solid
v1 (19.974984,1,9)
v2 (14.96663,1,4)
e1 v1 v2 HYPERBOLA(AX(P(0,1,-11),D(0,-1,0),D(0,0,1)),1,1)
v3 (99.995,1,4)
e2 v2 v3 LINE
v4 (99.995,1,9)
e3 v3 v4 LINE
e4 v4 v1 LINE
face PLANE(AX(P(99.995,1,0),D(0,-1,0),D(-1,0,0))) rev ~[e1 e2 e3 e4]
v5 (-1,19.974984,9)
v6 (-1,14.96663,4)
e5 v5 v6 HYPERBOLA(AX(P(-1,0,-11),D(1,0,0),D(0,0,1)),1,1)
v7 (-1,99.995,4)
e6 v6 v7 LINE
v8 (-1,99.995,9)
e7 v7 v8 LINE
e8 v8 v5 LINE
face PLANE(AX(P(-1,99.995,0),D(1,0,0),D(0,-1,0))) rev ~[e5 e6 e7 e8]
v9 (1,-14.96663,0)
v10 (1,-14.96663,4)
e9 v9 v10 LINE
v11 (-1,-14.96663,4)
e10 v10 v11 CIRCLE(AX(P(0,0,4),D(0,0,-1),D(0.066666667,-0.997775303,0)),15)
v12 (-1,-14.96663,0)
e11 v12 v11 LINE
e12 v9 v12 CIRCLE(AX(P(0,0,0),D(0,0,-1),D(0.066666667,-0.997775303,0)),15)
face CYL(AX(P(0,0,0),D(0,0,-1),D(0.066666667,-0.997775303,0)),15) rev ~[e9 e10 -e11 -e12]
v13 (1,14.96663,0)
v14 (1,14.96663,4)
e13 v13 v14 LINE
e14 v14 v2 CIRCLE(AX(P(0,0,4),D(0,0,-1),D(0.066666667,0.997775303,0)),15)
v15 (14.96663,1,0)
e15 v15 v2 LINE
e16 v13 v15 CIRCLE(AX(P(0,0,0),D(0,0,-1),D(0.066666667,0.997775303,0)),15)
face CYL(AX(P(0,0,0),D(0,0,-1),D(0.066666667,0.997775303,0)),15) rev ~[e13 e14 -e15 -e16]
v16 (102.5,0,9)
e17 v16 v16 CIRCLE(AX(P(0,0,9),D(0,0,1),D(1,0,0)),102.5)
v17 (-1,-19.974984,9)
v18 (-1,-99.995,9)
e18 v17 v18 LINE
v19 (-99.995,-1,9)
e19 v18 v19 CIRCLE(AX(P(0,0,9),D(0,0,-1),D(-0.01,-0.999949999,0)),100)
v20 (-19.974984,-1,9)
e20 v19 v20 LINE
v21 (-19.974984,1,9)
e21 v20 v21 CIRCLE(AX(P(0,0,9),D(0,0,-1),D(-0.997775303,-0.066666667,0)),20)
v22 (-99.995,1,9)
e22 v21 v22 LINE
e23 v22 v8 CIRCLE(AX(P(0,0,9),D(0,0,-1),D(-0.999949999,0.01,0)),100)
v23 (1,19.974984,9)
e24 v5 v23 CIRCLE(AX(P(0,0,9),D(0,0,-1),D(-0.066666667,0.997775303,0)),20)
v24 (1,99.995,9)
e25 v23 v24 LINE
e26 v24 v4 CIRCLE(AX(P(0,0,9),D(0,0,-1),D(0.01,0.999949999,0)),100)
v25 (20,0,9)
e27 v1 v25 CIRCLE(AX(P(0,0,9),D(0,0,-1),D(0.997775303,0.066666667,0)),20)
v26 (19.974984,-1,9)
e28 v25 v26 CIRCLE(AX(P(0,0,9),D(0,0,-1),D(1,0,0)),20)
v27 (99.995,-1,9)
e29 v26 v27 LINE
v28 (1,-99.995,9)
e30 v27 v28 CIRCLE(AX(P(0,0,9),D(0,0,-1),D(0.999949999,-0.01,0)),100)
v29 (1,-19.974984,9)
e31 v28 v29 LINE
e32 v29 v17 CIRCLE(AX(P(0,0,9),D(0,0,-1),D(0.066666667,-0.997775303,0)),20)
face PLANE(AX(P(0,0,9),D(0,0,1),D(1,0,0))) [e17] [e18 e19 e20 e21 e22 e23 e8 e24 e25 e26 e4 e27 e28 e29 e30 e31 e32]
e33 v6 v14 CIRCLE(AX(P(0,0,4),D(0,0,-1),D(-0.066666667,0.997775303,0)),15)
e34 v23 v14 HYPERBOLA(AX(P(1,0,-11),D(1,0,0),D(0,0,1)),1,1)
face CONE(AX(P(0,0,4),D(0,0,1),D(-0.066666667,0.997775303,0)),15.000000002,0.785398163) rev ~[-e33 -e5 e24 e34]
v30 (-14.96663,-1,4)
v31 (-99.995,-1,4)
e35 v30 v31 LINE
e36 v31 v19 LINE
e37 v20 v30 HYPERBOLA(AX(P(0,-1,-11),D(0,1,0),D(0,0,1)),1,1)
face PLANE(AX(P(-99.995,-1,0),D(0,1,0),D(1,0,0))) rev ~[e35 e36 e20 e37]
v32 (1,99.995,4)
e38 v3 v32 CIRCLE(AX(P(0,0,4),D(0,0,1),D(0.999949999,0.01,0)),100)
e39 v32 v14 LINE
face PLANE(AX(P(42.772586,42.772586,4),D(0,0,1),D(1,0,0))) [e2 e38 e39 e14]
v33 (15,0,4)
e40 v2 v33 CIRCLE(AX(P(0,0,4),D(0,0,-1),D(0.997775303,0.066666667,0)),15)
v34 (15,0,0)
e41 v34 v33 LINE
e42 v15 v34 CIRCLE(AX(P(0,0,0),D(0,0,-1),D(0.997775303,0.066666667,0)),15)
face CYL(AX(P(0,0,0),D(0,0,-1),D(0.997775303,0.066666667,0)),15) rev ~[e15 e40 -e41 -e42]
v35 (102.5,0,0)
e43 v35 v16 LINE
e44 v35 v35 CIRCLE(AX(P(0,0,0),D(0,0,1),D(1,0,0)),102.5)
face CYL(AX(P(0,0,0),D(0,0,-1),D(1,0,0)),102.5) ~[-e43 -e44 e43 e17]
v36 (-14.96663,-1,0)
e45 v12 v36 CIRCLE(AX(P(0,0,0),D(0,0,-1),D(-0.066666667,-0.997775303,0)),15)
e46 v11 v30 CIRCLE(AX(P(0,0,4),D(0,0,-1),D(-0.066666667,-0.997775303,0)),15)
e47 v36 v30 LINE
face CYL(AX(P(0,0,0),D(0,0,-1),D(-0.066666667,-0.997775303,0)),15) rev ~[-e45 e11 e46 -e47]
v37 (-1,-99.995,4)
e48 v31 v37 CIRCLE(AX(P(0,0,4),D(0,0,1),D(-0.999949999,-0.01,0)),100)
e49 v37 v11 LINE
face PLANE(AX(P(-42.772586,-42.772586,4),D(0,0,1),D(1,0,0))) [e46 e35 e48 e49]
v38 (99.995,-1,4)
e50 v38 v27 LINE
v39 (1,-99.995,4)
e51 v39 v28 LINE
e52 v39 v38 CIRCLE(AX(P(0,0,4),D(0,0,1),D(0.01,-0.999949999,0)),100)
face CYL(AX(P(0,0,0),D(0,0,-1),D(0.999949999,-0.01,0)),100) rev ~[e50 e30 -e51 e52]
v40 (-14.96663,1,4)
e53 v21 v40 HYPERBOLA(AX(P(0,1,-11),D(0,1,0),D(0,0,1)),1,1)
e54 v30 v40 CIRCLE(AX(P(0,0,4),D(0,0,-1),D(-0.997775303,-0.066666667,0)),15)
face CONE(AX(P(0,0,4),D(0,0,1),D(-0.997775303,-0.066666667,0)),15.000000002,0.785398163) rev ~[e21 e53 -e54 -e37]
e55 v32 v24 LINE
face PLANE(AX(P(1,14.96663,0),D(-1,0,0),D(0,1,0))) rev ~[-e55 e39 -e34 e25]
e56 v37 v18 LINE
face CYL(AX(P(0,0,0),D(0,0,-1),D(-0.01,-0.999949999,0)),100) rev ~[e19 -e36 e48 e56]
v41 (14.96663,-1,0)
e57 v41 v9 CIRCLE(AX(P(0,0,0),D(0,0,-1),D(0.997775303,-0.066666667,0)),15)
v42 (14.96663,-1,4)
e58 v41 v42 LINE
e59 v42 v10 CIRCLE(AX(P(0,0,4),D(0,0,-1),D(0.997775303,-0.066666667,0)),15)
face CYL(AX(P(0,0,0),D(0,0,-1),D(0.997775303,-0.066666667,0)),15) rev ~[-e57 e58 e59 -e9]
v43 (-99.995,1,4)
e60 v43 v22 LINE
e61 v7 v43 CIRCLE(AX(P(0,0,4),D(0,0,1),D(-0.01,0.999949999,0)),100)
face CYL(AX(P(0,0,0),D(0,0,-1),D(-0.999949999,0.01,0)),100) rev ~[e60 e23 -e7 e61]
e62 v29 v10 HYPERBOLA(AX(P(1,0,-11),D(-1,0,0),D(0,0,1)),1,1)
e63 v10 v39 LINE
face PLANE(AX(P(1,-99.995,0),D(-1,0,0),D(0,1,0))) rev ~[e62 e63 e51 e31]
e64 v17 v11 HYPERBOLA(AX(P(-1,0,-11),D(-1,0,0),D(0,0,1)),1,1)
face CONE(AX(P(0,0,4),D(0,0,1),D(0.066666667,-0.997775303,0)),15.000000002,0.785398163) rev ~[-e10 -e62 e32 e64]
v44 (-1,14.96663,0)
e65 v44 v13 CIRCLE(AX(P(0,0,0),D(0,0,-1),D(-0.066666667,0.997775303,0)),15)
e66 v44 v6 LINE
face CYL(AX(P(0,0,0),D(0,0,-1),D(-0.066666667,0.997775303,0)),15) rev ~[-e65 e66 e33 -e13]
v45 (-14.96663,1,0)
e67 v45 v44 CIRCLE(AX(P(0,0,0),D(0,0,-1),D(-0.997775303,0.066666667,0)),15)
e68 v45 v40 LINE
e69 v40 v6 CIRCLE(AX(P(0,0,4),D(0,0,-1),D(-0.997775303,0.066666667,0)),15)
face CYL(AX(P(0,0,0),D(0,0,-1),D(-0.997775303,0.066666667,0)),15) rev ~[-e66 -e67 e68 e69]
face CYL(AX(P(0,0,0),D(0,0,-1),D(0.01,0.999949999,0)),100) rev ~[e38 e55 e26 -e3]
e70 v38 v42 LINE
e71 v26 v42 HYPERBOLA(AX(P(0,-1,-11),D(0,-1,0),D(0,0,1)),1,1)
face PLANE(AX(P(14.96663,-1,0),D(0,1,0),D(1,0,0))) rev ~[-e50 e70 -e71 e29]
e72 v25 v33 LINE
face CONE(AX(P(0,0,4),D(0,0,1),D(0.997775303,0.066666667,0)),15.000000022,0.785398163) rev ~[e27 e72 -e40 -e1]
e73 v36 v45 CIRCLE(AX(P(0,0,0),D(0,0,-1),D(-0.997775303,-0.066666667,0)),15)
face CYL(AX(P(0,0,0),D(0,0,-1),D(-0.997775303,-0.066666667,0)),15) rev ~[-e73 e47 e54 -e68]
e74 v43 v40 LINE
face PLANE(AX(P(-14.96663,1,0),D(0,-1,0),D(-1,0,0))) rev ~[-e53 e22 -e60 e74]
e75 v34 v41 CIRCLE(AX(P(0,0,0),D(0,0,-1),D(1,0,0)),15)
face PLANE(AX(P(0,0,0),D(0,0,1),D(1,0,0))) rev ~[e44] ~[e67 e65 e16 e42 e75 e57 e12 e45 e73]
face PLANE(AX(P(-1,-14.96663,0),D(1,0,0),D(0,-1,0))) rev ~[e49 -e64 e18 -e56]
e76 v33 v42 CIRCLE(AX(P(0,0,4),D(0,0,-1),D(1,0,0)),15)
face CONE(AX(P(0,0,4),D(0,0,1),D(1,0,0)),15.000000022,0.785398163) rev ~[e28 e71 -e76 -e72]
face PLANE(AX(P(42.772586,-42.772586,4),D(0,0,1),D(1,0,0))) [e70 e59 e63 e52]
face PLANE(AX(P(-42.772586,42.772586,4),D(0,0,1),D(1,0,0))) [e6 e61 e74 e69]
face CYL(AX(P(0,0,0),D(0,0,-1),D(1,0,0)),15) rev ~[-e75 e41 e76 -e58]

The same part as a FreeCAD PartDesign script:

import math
import FreeCAD as App
import Part
import Sketcher
Q = App.Units.Quantity


def edges_at(feature, points):
    """Names of the edges that pass closest to the given points."""
    edges = feature.Shape.Edges
    near = lambda p: min(range(len(edges)), key=lambda i: edges[i].distToShape(Part.Vertex(*p))[0])
    return sorted({f"Edge{near(p) + 1}" for p in points})

doc = App.newDocument("Part")
body = doc.addObject("PartDesign::Body", "Body")

sketch1 = body.newObject("Sketcher::SketchObject", "Sketch")
sketch1.AttachmentSupport = (doc.getObject("XY_Plane"), [""])
sketch1.MapMode = "FlatFace"
sketch1.addGeometry([
    Part.LineSegment(App.Vector(-1, -99.995, 0), App.Vector(-1, -14.96663, 0)),
    Part.ArcOfCircle(Part.Circle(App.Vector(0, 0, 0), App.Vector(0, 0, 1), 15), math.radians(-176.177446), math.radians(-93.822554)),
    Part.LineSegment(App.Vector(-14.96663, -1, 0), App.Vector(-99.995, -1, 0)),
    Part.ArcOfCircle(Part.Circle(App.Vector(0, 0, 0), App.Vector(0, 0, 1), 100), math.radians(-179.427033), math.radians(-90.572967)),
], False)
sketch1.addConstraint([
    Sketcher.Constraint("Coincident", 0, 2, 1, 2),
    Sketcher.Constraint("Coincident", 1, 1, 2, 1),
    Sketcher.Constraint("Coincident", 2, 2, 3, 1),
    Sketcher.Constraint("Coincident", 3, 2, 0, 1),
    Sketcher.Constraint("Vertical", 0),
    Sketcher.Constraint("Horizontal", 2),
    Sketcher.Constraint("Coincident", 1, 3, -1, 1),
    Sketcher.Constraint("Coincident", 3, 3, -1, 1),
    Sketcher.Constraint("Equal", 2, 0),
    Sketcher.Constraint("Radius", 1, Q("15 mm")),
    Sketcher.Constraint("Radius", 3, Q("100 mm")),
    Sketcher.Constraint("DistanceX", 0, 2, -1, 1, Q("1 mm")),
])
pad1 = body.newObject("PartDesign::Pad", "Pad")
pad1.Profile = sketch1
pad1.Length = 4
body2 = doc.addObject("PartDesign::Body", "Body001")

sketch2 = body2.newObject("Sketcher::SketchObject", "Sketch001")
sketch2.AttachmentSupport = (doc.getObject("XY_Plane001"), [""])
sketch2.MapMode = "FlatFace"
sketch2.addGeometry([
    Part.LineSegment(App.Vector(99.995, -1, 0), App.Vector(14.96663, -1, 0)),
    Part.ArcOfCircle(Part.Circle(App.Vector(0, 0, 0), App.Vector(0, 0, 1), 15), math.radians(-86.177446), math.radians(-3.822554)),
    Part.LineSegment(App.Vector(1, -14.96663, 0), App.Vector(1, -99.995, 0)),
    Part.ArcOfCircle(Part.Circle(App.Vector(0, 0, 0), App.Vector(0, 0, 1), 100), math.radians(-89.427033), math.radians(-0.572967)),
], False)
sketch2.addConstraint([
    Sketcher.Constraint("Coincident", 0, 2, 1, 2),
    Sketcher.Constraint("Coincident", 1, 1, 2, 1),
    Sketcher.Constraint("Coincident", 2, 2, 3, 1),
    Sketcher.Constraint("Coincident", 3, 2, 0, 1),
    Sketcher.Constraint("Horizontal", 0),
    Sketcher.Constraint("Vertical", 2),
    Sketcher.Constraint("Coincident", 1, 3, -1, 1),
    Sketcher.Constraint("Coincident", 3, 3, -1, 1),
    Sketcher.Constraint("Equal", 0, 2),
    Sketcher.Constraint("Radius", 1, Q("15 mm")),
    Sketcher.Constraint("Radius", 3, Q("100 mm")),
    Sketcher.Constraint("DistanceY", 0, 2, -1, 1, Q("1 mm")),
])
pad2 = body2.newObject("PartDesign::Pad", "Pad001")
pad2.Profile = sketch2
pad2.Length = 4
body3 = doc.addObject("PartDesign::Body", "Body002")

sketch3 = body3.newObject("Sketcher::SketchObject", "Sketch002")
sketch3.AttachmentSupport = (doc.getObject("XY_Plane002"), [""])
sketch3.MapMode = "FlatFace"
sketch3.addGeometry([
    Part.ArcOfCircle(Part.Circle(App.Vector(0, 0, 0), App.Vector(0, 0, 1), 15), math.radians(3.822554), math.radians(86.177446)),
    Part.LineSegment(App.Vector(14.96663, 1, 0), App.Vector(99.995, 1, 0)),
    Part.ArcOfCircle(Part.Circle(App.Vector(0, 0, 0), App.Vector(0, 0, 1), 100), math.radians(0.572967), math.radians(89.427033)),
    Part.LineSegment(App.Vector(1, 99.995, 0), App.Vector(1, 14.96663, 0)),
], False)
sketch3.addConstraint([
    Sketcher.Constraint("Coincident", 0, 1, 1, 1),
    Sketcher.Constraint("Coincident", 1, 2, 2, 1),
    Sketcher.Constraint("Coincident", 2, 2, 3, 1),
    Sketcher.Constraint("Coincident", 3, 2, 0, 2),
    Sketcher.Constraint("Horizontal", 1),
    Sketcher.Constraint("Vertical", 3),
    Sketcher.Constraint("Coincident", 0, 3, -1, 1),
    Sketcher.Constraint("Coincident", 2, 3, -1, 1),
    Sketcher.Constraint("Equal", 1, 3),
    Sketcher.Constraint("Radius", 0, Q("15 mm")),
    Sketcher.Constraint("Radius", 2, Q("100 mm")),
    Sketcher.Constraint("DistanceY", -1, 1, 0, 1, Q("1 mm")),
])
pad3 = body3.newObject("PartDesign::Pad", "Pad002")
pad3.Profile = sketch3
pad3.Length = 4
body4 = doc.addObject("PartDesign::Body", "Body003")

sketch4 = body4.newObject("Sketcher::SketchObject", "Sketch003")
sketch4.AttachmentSupport = (doc.getObject("XY_Plane003"), [""])
sketch4.MapMode = "FlatFace"
sketch4.addGeometry([
    Part.ArcOfCircle(Part.Circle(App.Vector(0, 0, 0), App.Vector(0, 0, 1), 15), math.radians(93.822554), math.radians(176.177446)),
    Part.LineSegment(App.Vector(-1, 14.96663, 0), App.Vector(-1, 99.995, 0)),
    Part.ArcOfCircle(Part.Circle(App.Vector(0, 0, 0), App.Vector(0, 0, 1), 100), math.radians(90.572967), math.radians(179.427033)),
    Part.LineSegment(App.Vector(-99.995, 1, 0), App.Vector(-14.96663, 1, 0)),
], False)
sketch4.addConstraint([
    Sketcher.Constraint("Coincident", 0, 1, 1, 1),
    Sketcher.Constraint("Coincident", 1, 2, 2, 1),
    Sketcher.Constraint("Coincident", 2, 2, 3, 1),
    Sketcher.Constraint("Coincident", 3, 2, 0, 2),
    Sketcher.Constraint("Vertical", 1),
    Sketcher.Constraint("Horizontal", 3),
    Sketcher.Constraint("Coincident", 0, 3, -1, 1),
    Sketcher.Constraint("Coincident", 2, 3, -1, 1),
    Sketcher.Constraint("Equal", 3, 1),
    Sketcher.Constraint("Radius", 0, Q("15 mm")),
    Sketcher.Constraint("Radius", 2, Q("100 mm")),
    Sketcher.Constraint("DistanceX", 0, 1, -1, 1, Q("1 mm")),
])
pad4 = body4.newObject("PartDesign::Pad", "Pad003")
pad4.Profile = sketch4
pad4.Length = 4
body.AllowCompound = True
doc.recompute()

boolean = body.newObject("PartDesign::Boolean", "Boolean")
boolean.Type = "Fuse"
boolean.addObjects([body2])
doc.recompute()

boolean2 = body.newObject("PartDesign::Boolean", "Boolean001")
boolean2.Type = "Fuse"
boolean2.addObjects([body3])
doc.recompute()

boolean3 = body.newObject("PartDesign::Boolean", "Boolean002")
boolean3.Type = "Fuse"
boolean3.addObjects([body4])

sketch5 = body.newObject("Sketcher::SketchObject", "Sketch004")
sketch5.AttachmentSupport = (doc.getObject("XY_Plane"), [""])
sketch5.MapMode = "FlatFace"
sketch5.addGeometry([
    Part.Circle(App.Vector(0, 0, 0), App.Vector(0, 0, 1), 102.5),
    Part.LineSegment(App.Vector(99.995, 1, 0), App.Vector(14.96663, 1, 0)),
    Part.ArcOfCircle(Part.Circle(App.Vector(0, 0, 0), App.Vector(0, 0, 1), 15), math.radians(0), math.radians(3.822554)),
    Part.ArcOfCircle(Part.Circle(App.Vector(0, 0, 0), App.Vector(0, 0, 1), 15), math.radians(-3.822554), math.radians(0)),
    Part.LineSegment(App.Vector(14.96663, -1, 0), App.Vector(99.995, -1, 0)),
    Part.ArcOfCircle(Part.Circle(App.Vector(0, 0, 0), App.Vector(0, 0, 1), 100), math.radians(-89.427033), math.radians(-0.572967)),
    Part.LineSegment(App.Vector(1, -99.995, 0), App.Vector(1, -14.96663, 0)),
    Part.ArcOfCircle(Part.Circle(App.Vector(0, 0, 0), App.Vector(0, 0, 1), 15), math.radians(-93.822554), math.radians(-86.177446)),
    Part.LineSegment(App.Vector(-1, -14.96663, 0), App.Vector(-1, -99.995, 0)),
    Part.ArcOfCircle(Part.Circle(App.Vector(0, 0, 0), App.Vector(0, 0, 1), 100), math.radians(-179.427033), math.radians(-90.572967)),
    Part.LineSegment(App.Vector(-99.995, -1, 0), App.Vector(-14.96663, -1, 0)),
    Part.ArcOfCircle(Part.Circle(App.Vector(0, 0, 0), App.Vector(0, 0, 1), 15), math.radians(176.177446), math.radians(183.822554)),
    Part.LineSegment(App.Vector(-14.96663, 1, 0), App.Vector(-99.995, 1, 0)),
    Part.ArcOfCircle(Part.Circle(App.Vector(0, 0, 0), App.Vector(0, 0, 1), 100), math.radians(90.572967), math.radians(179.427033)),
    Part.LineSegment(App.Vector(-1, 99.995, 0), App.Vector(-1, 14.96663, 0)),
    Part.ArcOfCircle(Part.Circle(App.Vector(0, 0, 0), App.Vector(0, 0, 1), 15), math.radians(86.177446), math.radians(93.822554)),
    Part.LineSegment(App.Vector(1, 14.96663, 0), App.Vector(1, 99.995, 0)),
    Part.ArcOfCircle(Part.Circle(App.Vector(0, 0, 0), App.Vector(0, 0, 1), 100), math.radians(0.572967), math.radians(89.427033)),
], False)
sketch5.addConstraint([
    Sketcher.Constraint("Coincident", 1, 2, 2, 2),
    Sketcher.Constraint("Tangent", 2, 1, 3, 2),
    Sketcher.Constraint("Coincident", 3, 1, 4, 1),
    Sketcher.Constraint("Coincident", 4, 2, 5, 2),
    Sketcher.Constraint("Coincident", 5, 1, 6, 1),
    Sketcher.Constraint("Coincident", 6, 2, 7, 2),
    Sketcher.Constraint("Coincident", 7, 1, 8, 1),
    Sketcher.Constraint("Coincident", 8, 2, 9, 2),
    Sketcher.Constraint("Coincident", 9, 1, 10, 1),
    Sketcher.Constraint("Coincident", 10, 2, 11, 2),
    Sketcher.Constraint("Coincident", 11, 1, 12, 1),
    Sketcher.Constraint("Coincident", 12, 2, 13, 2),
    Sketcher.Constraint("Coincident", 13, 1, 14, 1),
    Sketcher.Constraint("Coincident", 14, 2, 15, 2),
    Sketcher.Constraint("Coincident", 15, 1, 16, 1),
    Sketcher.Constraint("Coincident", 16, 2, 17, 2),
    Sketcher.Constraint("Coincident", 17, 1, 1, 1),
    Sketcher.Constraint("Horizontal", 1),
    Sketcher.Constraint("Horizontal", 4),
    Sketcher.Constraint("Vertical", 6),
    Sketcher.Constraint("Vertical", 8),
    Sketcher.Constraint("Horizontal", 10),
    Sketcher.Constraint("Horizontal", 12),
    Sketcher.Constraint("Vertical", 14),
    Sketcher.Constraint("Vertical", 16),
    Sketcher.Constraint("Coincident", 0, 3, -1, 1),
    Sketcher.Constraint("Coincident", 2, 3, -1, 1),
    Sketcher.Constraint("Coincident", 5, 3, -1, 1),
    Sketcher.Constraint("Coincident", 7, 3, -1, 1),
    Sketcher.Constraint("Coincident", 9, 3, -1, 1),
    Sketcher.Constraint("Coincident", 11, 3, -1, 1),
    Sketcher.Constraint("Coincident", 13, 3, -1, 1),
    Sketcher.Constraint("Coincident", 15, 3, -1, 1),
    Sketcher.Constraint("Coincident", 17, 3, -1, 1),
    Sketcher.Constraint("Equal", 2, 3),
    Sketcher.Constraint("Equal", 3, 7),
    Sketcher.Constraint("Equal", 5, 9),
    Sketcher.Constraint("Equal", 7, 11),
    Sketcher.Constraint("Equal", 9, 13),
    Sketcher.Constraint("Equal", 11, 15),
    Sketcher.Constraint("Equal", 13, 17),
    Sketcher.Constraint("PointOnObject", 2, 1, -1),
    Sketcher.Constraint("Horizontal", 6, 2, 7, 1),
    Sketcher.Constraint("Horizontal", 4, 2, 9, 1),
    Sketcher.Constraint("Horizontal", 1, 2, 11, 1),
    Sketcher.Constraint("Horizontal", 14, 2, 15, 1),
    Sketcher.Constraint("Vertical", 1, 2, 3, 1),
    Sketcher.Constraint("Vertical", 8, 2, 13, 1),
    Sketcher.Constraint("Equal", 12, 6),
    Sketcher.Constraint("Diameter", 0, Q("205 mm")),
    Sketcher.Constraint("Radius", 2, Q("15 mm")),
    Sketcher.Constraint("Radius", 5, Q("100 mm")),
    Sketcher.Constraint("DistanceY", -1, 1, 1, 2, Q("1 mm")),
])
pad5 = body.newObject("PartDesign::Pad", "Pad004")
pad5.Profile = sketch5
pad5.Length = 9
doc.recompute()

chamfer = body.newObject("PartDesign::Chamfer", "Chamfer")
chamfer.Base = (pad5, edges_at(pad5, [
    (0, -15, 9),
    (-15, 0, 9),
    (0, 15, 9),
    (14.992, -0.5, 9),
]))
chamfer.Size = 5

doc.recompute()
